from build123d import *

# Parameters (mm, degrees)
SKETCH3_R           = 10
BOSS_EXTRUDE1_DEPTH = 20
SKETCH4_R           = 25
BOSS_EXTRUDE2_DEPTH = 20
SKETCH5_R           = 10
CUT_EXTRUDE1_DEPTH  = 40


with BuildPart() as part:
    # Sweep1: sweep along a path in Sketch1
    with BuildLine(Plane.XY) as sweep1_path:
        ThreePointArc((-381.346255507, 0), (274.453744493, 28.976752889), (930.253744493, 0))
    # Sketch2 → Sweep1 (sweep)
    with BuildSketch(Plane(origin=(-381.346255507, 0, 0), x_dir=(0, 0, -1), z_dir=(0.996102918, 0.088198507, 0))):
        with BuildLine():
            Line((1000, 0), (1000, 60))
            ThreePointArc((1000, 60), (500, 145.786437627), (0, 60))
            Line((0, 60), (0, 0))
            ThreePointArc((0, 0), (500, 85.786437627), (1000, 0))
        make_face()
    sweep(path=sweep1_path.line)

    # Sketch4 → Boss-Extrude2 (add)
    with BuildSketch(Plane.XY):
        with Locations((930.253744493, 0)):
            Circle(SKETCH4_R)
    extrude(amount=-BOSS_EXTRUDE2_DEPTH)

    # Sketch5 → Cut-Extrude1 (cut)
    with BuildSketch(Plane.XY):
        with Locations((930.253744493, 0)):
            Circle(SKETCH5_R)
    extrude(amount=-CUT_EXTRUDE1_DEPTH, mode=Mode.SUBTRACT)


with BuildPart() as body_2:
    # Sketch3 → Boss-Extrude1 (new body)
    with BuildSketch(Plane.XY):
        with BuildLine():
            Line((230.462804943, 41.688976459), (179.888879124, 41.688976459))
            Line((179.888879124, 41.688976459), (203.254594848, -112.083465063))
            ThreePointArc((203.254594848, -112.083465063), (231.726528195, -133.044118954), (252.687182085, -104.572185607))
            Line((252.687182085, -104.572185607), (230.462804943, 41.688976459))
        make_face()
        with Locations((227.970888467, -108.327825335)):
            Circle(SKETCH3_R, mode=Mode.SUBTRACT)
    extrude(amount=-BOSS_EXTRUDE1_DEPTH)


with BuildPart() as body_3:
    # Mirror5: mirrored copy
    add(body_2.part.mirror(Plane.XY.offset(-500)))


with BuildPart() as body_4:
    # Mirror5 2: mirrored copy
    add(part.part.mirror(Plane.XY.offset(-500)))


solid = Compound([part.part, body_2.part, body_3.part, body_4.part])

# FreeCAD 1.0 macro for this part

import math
import FreeCAD as App
import Part
import Sketcher
from FreeCAD import Vector
Q = App.Units.Quantity

doc = App.newDocument("Part")
body = doc.addObject("PartDesign::Body", "Body")

# Sketch on an angled plane
sketch1 = doc.addObject("Sketcher::SketchObject", "Sketch")
body.addObject(sketch1)
sketch1.Placement = App.Placement(Vector(-381.346256, 0, 0), App.Rotation(Vector(0, 0, -1), Vector(-0.088198507, 0.996102918, 0), Vector(0.996102918, 0.088198507, 0), "ZXY"))
sketch1.addGeometry([
    Part.LineSegment(Vector(1000, 0, 0), Vector(1000, 60, 0)),
    Part.ArcOfCircle(Part.Circle(Vector(500, -1354, 0), Vector(0, 0, 1), 1500), math.radians(71), math.radians(109)),
    Part.LineSegment(Vector(0, 60, 0), Vector(0, 0, 0)),
    Part.ArcOfCircle(Part.Circle(Vector(500, -1414, 0), Vector(0, 0, 1), 1500), math.radians(71), math.radians(109)),
], False)
sketch1.addConstraint([
    Sketcher.Constraint("Coincident", 0, 2, 1, 1),
    Sketcher.Constraint("Coincident", 1, 2, 2, 1),
    Sketcher.Constraint("Coincident", 2, 2, 3, 2),
    Sketcher.Constraint("Coincident", 3, 1, 0, 1),
    Sketcher.Constraint("Vertical", 0),
    Sketcher.Constraint("Vertical", 2),
    Sketcher.Constraint("Coincident", 2, 2, -1, 1),
    Sketcher.Constraint("Equal", 1, 3),
    Sketcher.Constraint("Vertical", 1, 3, 3, 3),
    Sketcher.Constraint("Radius", 1, Q("1500 mm")),
    Sketcher.Constraint("DistanceY", 0, 1, 0, 2, Q("60 mm")),
    Sketcher.Constraint("DistanceX", -1, 1, 1, 3, Q("500 mm")),
    Sketcher.Constraint("DistanceX", -1, 1, 0, 2, Q("1000 mm")),
])

# Sketch on XY plane
sketch2 = doc.addObject("Sketcher::SketchObject", "Sketch001")
body.addObject(sketch2)
sketch2.AttachmentSupport = (doc.XY_Plane, [""])
sketch2.MapMode = "FlatFace"
sketch2.addGeometry(Part.ArcOfCircle(Part.Circle(Vector(274, -7407, 0), Vector(0, 0, 1), 7435), math.radians(84.94), math.radians(95.06)), False)
sketch2.addConstraint([
    Sketcher.Constraint("PointOnObject", 0, 1, -1),
    Sketcher.Constraint("PointOnObject", 0, 2, -1),
    Sketcher.Constraint("Radius", 0, Q("7435.5 mm")),
    Sketcher.Constraint("DistanceX", 0, 2, 0, 1, Q("1311.6 mm")),
    Sketcher.Constraint("DistanceX", -1, 1, 0, 3, Q("274.453744 mm")),
])
doc.recompute()

additivepipe = doc.addObject("PartDesign::AdditivePipe", "AdditivePipe")
body.addObject(additivepipe)
additivepipe.Profile = sketch1
additivepipe.Spine = (sketch2, ["Edge1"])

# Sketch on XY plane
sketch3 = doc.addObject("Sketcher::SketchObject", "Sketch002")
body.addObject(sketch3)
sketch3.AttachmentSupport = (doc.XY_Plane, [""])
sketch3.MapMode = "FlatFace"
sketch3.addGeometry(Part.Circle(Vector(930, 0, 0), Vector(0, 0, 1), 25), False)
sketch3.addConstraint([
    Sketcher.Constraint("PointOnObject", 0, 3, -1),
    Sketcher.Constraint("Diameter", 0, Q("50 mm")),
    Sketcher.Constraint("DistanceX", -1, 1, 0, 3, Q("930.253744 mm")),
])
pad1 = doc.addObject("PartDesign::Pad", "Pad")
body.addObject(pad1)
pad1.Profile = sketch3
pad1.Length = 20
pad1.Reversed = True

# Sketch on XY plane
sketch4 = doc.addObject("Sketcher::SketchObject", "Sketch003")
body.addObject(sketch4)
sketch4.AttachmentSupport = (doc.XY_Plane, [""])
sketch4.MapMode = "FlatFace"
sketch4.addGeometry(Part.Circle(Vector(930, 0, 0), Vector(0, 0, 1), 10), False)
sketch4.addConstraint([
    Sketcher.Constraint("PointOnObject", 0, 3, -1),
    Sketcher.Constraint("Diameter", 0, Q("20 mm")),
    Sketcher.Constraint("DistanceX", -1, 1, 0, 3, Q("930.253744 mm")),
])
pocket1 = doc.addObject("PartDesign::Pocket", "Pocket")
body.addObject(pocket1)
pocket1.Profile = sketch4
pocket1.Length = 40
body2 = doc.addObject("PartDesign::Body", "Body001")

# Sketch on XY plane
sketch5 = doc.addObject("Sketcher::SketchObject", "Sketch004")
body2.addObject(sketch5)
sketch5.AttachmentSupport = (doc.getObject("XY_Plane001"), [""])
sketch5.MapMode = "FlatFace"
sketch5.addGeometry([
    Part.LineSegment(Vector(230, 42, 0), Vector(180, 42, 0)),  # 0
    Part.LineSegment(Vector(180, 42, 0), Vector(203, -112, 0)),  # 1
    Part.ArcOfCircle(Part.Circle(Vector(228, -108, 0), Vector(0, 0, 1), 25), math.radians(-171), math.radians(9)),  # 2
    Part.LineSegment(Vector(253, -105, 0), Vector(230, 42, 0)),  # 3
    Part.Circle(Vector(228, -108, 0), Vector(0, 0, 1), 10),  # 4
], False)
sketch5.addConstraint([
    Sketcher.Constraint("Coincident", 0, 2, 1, 1),
    Sketcher.Constraint("Tangent", 1, 2, 2, 1),
    Sketcher.Constraint("Tangent", 2, 2, 3, 1),
    Sketcher.Constraint("Coincident", 3, 2, 0, 1),
    Sketcher.Constraint("Horizontal", 0),
    Sketcher.Constraint("Coincident", 4, 3, 2, 3),
    Sketcher.Constraint("Parallel", 1, 3),
    Sketcher.Constraint("Diameter", 4, Q("20 mm")),
    Sketcher.Constraint("Radius", 2, Q("25 mm")),
    Sketcher.Constraint("Angle", 1, Q("-81.36 deg")),
    Sketcher.Constraint("DistanceY", 4, 3, 0, 2, Q("150.016802 mm")),
    Sketcher.Constraint("DistanceX", -1, 1, 2, 3, Q("227.970888 mm")),
    Sketcher.Constraint("DistanceY", 2, 3, -1, 1, Q("108.327825 mm")),
])
pad2 = doc.addObject("PartDesign::Pad", "Pad001")
body2.addObject(pad2)
pad2.Profile = sketch5
pad2.Length = 20
pad2.Reversed = True
body3 = doc.addObject("PartDesign::Body", "Body002")
doc.recompute()

mirroring = doc.addObject("Part::Mirroring", "Mirroring")
mirroring.Source = body2
mirroring.Base = Vector(0, 0, -500)
mirroring.Normal = Vector(0, 0, 1)
body3.BaseFeature = mirroring
doc.recompute()
body4 = doc.addObject("PartDesign::Body", "Body003")
doc.recompute()

mirroring2 = doc.addObject("Part::Mirroring", "Mirroring001")
mirroring2.Source = body
mirroring2.Base = Vector(0, 0, -500)
mirroring2.Normal = Vector(0, 0, 1)
body4.BaseFeature = mirroring2
doc.recompute()
mirroring.Visibility = False
mirroring2.Visibility = False

doc.recompute()
